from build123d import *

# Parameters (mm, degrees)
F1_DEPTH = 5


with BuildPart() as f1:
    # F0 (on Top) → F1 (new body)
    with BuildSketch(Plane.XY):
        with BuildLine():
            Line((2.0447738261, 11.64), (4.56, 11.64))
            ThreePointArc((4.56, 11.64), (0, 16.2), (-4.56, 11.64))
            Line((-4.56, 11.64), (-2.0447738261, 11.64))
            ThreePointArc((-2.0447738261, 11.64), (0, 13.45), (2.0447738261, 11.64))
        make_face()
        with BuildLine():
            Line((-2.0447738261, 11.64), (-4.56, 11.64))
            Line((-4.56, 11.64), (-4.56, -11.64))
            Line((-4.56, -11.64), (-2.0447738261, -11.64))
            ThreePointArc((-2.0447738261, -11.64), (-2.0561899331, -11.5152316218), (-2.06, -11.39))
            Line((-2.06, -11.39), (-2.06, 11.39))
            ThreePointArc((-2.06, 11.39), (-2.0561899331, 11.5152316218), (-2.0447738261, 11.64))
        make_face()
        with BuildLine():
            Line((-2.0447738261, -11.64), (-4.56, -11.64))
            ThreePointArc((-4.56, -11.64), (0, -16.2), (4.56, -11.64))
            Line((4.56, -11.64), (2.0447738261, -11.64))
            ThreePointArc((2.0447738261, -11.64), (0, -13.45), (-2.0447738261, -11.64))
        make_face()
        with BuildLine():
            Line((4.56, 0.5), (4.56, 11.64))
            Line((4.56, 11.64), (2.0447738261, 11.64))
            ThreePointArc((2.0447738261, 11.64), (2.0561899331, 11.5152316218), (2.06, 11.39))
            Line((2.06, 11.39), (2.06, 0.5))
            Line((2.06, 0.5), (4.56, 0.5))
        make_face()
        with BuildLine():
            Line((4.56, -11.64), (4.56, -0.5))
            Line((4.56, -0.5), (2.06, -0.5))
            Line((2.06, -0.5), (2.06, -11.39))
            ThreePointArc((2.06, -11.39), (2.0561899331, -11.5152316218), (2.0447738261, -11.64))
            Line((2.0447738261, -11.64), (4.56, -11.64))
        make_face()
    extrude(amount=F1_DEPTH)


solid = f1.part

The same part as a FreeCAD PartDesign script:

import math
import FreeCAD as App
import Part
import Sketcher
from FreeCAD import Vector
Q = App.Units.Quantity

doc = App.newDocument("Part")
body = doc.addObject("PartDesign::Body", "Body")

# Sketch on XY plane
sketch1 = body.newObject("Sketcher::SketchObject", "Sketch")
sketch1.AttachmentSupport = (doc.getObject("XY_Plane"), [""])
sketch1.MapMode = "FlatFace"
sketch1.addGeometry([
    Part.ArcOfCircle(Part.Circle(Vector(0, 11.64, 0), Vector(0, 0, 1), 4.56), math.radians(0), math.radians(180)),  # 0
    Part.LineSegment(Vector(-4.56, 11.64, 0), Vector(-4.56, -11.64, 0)),  # 1
    Part.ArcOfCircle(Part.Circle(Vector(0, -11.64, 0), Vector(0, 0, 1), 4.56), math.radians(180), math.radians(360)),  # 2
    Part.LineSegment(Vector(4.56, -11.64, 0), Vector(4.56, -0.5, 0)),  # 3
    Part.LineSegment(Vector(4.56, -0.5, 0), Vector(2.06, -0.5, 0)),  # 4
    Part.LineSegment(Vector(2.06, -0.5, 0), Vector(2.06, -11.39, 0)),  # 5
    Part.ArcOfCircle(Part.Circle(Vector(0, -11.39, 0), Vector(0, 0, 1), 2.06), math.radians(-6.97), math.radians(0)),  # 6
    Part.ArcOfCircle(Part.Circle(Vector(0, -11.39, 0), Vector(0, 0, 1), 2.06), math.radians(-173), math.radians(-7)),  # 7
    Part.ArcOfCircle(Part.Circle(Vector(0, -11.39, 0), Vector(0, 0, 1), 2.06), math.radians(180), math.radians(186.97)),  # 8
    Part.LineSegment(Vector(-2.06, -11.39, 0), Vector(-2.06, 11.39, 0)),  # 9
    Part.ArcOfCircle(Part.Circle(Vector(0, 11.39, 0), Vector(0, 0, 1), 2.06), math.radians(173.03), math.radians(180)),  # 10
    Part.ArcOfCircle(Part.Circle(Vector(0, 11.39, 0), Vector(0, 0, 1), 2.06), math.radians(7), math.radians(173)),  # 11
    Part.ArcOfCircle(Part.Circle(Vector(0, 11.39, 0), Vector(0, 0, 1), 2.06), math.radians(0), math.radians(6.97)),  # 12
    Part.LineSegment(Vector(2.06, 11.39, 0), Vector(2.06, 0.5, 0)),  # 13
    Part.LineSegment(Vector(2.06, 0.5, 0), Vector(4.56, 0.5, 0)),  # 14
    Part.LineSegment(Vector(4.56, 0.5, 0), Vector(4.56, 11.64, 0)),  # 15
], False)
sketch1.addConstraint([
    Sketcher.Constraint("Tangent", 0, 2, 1, 1),
    Sketcher.Constraint("Tangent", 1, 2, 2, 1),
    Sketcher.Constraint("Tangent", 2, 2, 3, 1),
    Sketcher.Constraint("Coincident", 3, 2, 4, 1),
    Sketcher.Constraint("Coincident", 4, 2, 5, 1),
    Sketcher.Constraint("Tangent", 5, 2, 6, 2),
    Sketcher.Constraint("Tangent", 6, 1, 7, 2),
    Sketcher.Constraint("Tangent", 7, 1, 8, 2),
    Sketcher.Constraint("Tangent", 8, 1, 9, 1),
    Sketcher.Constraint("Tangent", 9, 2, 10, 2),
    Sketcher.Constraint("Tangent", 10, 1, 11, 2),
    Sketcher.Constraint("Tangent", 11, 1, 12, 2),
    Sketcher.Constraint("Tangent", 12, 1, 13, 1),
    Sketcher.Constraint("Coincident", 13, 2, 14, 1),
    Sketcher.Constraint("Coincident", 14, 2, 15, 1),
    Sketcher.Constraint("Tangent", 15, 2, 0, 1),
    Sketcher.Constraint("Vertical", 1),
    Sketcher.Constraint("Vertical", 3),
    Sketcher.Constraint("Horizontal", 4),
    Sketcher.Constraint("Vertical", 5),
    Sketcher.Constraint("Vertical", 9),
    Sketcher.Constraint("Vertical", 13),
    Sketcher.Constraint("Horizontal", 14),
    Sketcher.Constraint("Vertical", 15),
    Sketcher.Constraint("Coincident", 8, 3, 6, 3),
    Sketcher.Constraint("Coincident", 12, 3, 10, 3),
    Sketcher.Constraint("Equal", 0, 2),
    Sketcher.Constraint("Equal", 8, 10),
    Sketcher.Constraint("Symmetric", 0, 3, 2, 3, -1, 1),
    Sketcher.Constraint("Symmetric", 6, 3, 10, 3, -1, 1),
    Sketcher.Constraint("Horizontal", 2, 2, 6, 1),
    Sketcher.Constraint("Horizontal", 6, 1, 7, 1),
    Sketcher.Constraint("Horizontal", 0, 2, 10, 1),
    Sketcher.Constraint("Horizontal", 10, 1, 11, 1),
    Sketcher.Constraint("Equal", 5, 13),
    Sketcher.Constraint("Radius", 0, Q("4.56 mm")),
    Sketcher.Constraint("Radius", 6, Q("2.06 mm")),
    Sketcher.Constraint("DistanceY", 4, 2, 13, 2, Q("1 mm")),
    Sketcher.Constraint("DistanceY", 1, 2, 1, 1, Q("23.28 mm")),
    Sketcher.Constraint("DistanceY", 5, 2, 5, 1, Q("10.89 mm")),
])
pad1 = body.newObject("PartDesign::Pad", "Pad")
pad1.Profile = sketch1
pad1.Length = 5

doc.recompute()
